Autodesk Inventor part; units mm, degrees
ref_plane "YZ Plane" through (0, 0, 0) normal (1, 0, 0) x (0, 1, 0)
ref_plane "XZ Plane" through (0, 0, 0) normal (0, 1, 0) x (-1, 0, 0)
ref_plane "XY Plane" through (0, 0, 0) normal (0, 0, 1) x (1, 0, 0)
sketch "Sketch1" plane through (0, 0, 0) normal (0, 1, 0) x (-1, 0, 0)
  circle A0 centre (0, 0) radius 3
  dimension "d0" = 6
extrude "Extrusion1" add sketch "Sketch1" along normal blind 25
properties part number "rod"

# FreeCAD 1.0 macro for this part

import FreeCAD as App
import Part
import Sketcher
from FreeCAD import Vector
Q = App.Units.Quantity

doc = App.newDocument("Part")
params = doc.addObject("Spreadsheet::Sheet", "Params")
for row, (alias, value) in enumerate([
    ("sketch1_diameter", "6 mm"),
    ("pad1_length", "25 mm"),
], start=1):
    params.set(f"A{row}", alias)
    params.set(f"B{row}", "=" + value)
    params.setAlias(f"B{row}", alias)

body = doc.addObject("PartDesign::Body", "Body")

sketch1 = body.newObject("Sketcher::SketchObject", "Sketch")
sketch1.AttachmentSupport = (doc.getObject("XZ_Plane"), [""])
sketch1.MapMode = "FlatFace"
sketch1.addGeometry(Part.Circle(Vector(0, 0, 0), Vector(0, 0, 1), 3), False)
sketch1.addConstraint(Sketcher.Constraint("Coincident", 0, 3, -1, 1))
sketch1.addConstraint(Sketcher.Constraint("Diameter", 0, Q("6 mm")))
sketch1.setExpression("Constraints[1]", "Params.sketch1_diameter")
pad1 = body.newObject("PartDesign::Pad", "Pad")
pad1.Profile = sketch1
pad1.setExpression("Length", "Params.pad1_length")
pad1.Reversed = True

doc.recompute()
